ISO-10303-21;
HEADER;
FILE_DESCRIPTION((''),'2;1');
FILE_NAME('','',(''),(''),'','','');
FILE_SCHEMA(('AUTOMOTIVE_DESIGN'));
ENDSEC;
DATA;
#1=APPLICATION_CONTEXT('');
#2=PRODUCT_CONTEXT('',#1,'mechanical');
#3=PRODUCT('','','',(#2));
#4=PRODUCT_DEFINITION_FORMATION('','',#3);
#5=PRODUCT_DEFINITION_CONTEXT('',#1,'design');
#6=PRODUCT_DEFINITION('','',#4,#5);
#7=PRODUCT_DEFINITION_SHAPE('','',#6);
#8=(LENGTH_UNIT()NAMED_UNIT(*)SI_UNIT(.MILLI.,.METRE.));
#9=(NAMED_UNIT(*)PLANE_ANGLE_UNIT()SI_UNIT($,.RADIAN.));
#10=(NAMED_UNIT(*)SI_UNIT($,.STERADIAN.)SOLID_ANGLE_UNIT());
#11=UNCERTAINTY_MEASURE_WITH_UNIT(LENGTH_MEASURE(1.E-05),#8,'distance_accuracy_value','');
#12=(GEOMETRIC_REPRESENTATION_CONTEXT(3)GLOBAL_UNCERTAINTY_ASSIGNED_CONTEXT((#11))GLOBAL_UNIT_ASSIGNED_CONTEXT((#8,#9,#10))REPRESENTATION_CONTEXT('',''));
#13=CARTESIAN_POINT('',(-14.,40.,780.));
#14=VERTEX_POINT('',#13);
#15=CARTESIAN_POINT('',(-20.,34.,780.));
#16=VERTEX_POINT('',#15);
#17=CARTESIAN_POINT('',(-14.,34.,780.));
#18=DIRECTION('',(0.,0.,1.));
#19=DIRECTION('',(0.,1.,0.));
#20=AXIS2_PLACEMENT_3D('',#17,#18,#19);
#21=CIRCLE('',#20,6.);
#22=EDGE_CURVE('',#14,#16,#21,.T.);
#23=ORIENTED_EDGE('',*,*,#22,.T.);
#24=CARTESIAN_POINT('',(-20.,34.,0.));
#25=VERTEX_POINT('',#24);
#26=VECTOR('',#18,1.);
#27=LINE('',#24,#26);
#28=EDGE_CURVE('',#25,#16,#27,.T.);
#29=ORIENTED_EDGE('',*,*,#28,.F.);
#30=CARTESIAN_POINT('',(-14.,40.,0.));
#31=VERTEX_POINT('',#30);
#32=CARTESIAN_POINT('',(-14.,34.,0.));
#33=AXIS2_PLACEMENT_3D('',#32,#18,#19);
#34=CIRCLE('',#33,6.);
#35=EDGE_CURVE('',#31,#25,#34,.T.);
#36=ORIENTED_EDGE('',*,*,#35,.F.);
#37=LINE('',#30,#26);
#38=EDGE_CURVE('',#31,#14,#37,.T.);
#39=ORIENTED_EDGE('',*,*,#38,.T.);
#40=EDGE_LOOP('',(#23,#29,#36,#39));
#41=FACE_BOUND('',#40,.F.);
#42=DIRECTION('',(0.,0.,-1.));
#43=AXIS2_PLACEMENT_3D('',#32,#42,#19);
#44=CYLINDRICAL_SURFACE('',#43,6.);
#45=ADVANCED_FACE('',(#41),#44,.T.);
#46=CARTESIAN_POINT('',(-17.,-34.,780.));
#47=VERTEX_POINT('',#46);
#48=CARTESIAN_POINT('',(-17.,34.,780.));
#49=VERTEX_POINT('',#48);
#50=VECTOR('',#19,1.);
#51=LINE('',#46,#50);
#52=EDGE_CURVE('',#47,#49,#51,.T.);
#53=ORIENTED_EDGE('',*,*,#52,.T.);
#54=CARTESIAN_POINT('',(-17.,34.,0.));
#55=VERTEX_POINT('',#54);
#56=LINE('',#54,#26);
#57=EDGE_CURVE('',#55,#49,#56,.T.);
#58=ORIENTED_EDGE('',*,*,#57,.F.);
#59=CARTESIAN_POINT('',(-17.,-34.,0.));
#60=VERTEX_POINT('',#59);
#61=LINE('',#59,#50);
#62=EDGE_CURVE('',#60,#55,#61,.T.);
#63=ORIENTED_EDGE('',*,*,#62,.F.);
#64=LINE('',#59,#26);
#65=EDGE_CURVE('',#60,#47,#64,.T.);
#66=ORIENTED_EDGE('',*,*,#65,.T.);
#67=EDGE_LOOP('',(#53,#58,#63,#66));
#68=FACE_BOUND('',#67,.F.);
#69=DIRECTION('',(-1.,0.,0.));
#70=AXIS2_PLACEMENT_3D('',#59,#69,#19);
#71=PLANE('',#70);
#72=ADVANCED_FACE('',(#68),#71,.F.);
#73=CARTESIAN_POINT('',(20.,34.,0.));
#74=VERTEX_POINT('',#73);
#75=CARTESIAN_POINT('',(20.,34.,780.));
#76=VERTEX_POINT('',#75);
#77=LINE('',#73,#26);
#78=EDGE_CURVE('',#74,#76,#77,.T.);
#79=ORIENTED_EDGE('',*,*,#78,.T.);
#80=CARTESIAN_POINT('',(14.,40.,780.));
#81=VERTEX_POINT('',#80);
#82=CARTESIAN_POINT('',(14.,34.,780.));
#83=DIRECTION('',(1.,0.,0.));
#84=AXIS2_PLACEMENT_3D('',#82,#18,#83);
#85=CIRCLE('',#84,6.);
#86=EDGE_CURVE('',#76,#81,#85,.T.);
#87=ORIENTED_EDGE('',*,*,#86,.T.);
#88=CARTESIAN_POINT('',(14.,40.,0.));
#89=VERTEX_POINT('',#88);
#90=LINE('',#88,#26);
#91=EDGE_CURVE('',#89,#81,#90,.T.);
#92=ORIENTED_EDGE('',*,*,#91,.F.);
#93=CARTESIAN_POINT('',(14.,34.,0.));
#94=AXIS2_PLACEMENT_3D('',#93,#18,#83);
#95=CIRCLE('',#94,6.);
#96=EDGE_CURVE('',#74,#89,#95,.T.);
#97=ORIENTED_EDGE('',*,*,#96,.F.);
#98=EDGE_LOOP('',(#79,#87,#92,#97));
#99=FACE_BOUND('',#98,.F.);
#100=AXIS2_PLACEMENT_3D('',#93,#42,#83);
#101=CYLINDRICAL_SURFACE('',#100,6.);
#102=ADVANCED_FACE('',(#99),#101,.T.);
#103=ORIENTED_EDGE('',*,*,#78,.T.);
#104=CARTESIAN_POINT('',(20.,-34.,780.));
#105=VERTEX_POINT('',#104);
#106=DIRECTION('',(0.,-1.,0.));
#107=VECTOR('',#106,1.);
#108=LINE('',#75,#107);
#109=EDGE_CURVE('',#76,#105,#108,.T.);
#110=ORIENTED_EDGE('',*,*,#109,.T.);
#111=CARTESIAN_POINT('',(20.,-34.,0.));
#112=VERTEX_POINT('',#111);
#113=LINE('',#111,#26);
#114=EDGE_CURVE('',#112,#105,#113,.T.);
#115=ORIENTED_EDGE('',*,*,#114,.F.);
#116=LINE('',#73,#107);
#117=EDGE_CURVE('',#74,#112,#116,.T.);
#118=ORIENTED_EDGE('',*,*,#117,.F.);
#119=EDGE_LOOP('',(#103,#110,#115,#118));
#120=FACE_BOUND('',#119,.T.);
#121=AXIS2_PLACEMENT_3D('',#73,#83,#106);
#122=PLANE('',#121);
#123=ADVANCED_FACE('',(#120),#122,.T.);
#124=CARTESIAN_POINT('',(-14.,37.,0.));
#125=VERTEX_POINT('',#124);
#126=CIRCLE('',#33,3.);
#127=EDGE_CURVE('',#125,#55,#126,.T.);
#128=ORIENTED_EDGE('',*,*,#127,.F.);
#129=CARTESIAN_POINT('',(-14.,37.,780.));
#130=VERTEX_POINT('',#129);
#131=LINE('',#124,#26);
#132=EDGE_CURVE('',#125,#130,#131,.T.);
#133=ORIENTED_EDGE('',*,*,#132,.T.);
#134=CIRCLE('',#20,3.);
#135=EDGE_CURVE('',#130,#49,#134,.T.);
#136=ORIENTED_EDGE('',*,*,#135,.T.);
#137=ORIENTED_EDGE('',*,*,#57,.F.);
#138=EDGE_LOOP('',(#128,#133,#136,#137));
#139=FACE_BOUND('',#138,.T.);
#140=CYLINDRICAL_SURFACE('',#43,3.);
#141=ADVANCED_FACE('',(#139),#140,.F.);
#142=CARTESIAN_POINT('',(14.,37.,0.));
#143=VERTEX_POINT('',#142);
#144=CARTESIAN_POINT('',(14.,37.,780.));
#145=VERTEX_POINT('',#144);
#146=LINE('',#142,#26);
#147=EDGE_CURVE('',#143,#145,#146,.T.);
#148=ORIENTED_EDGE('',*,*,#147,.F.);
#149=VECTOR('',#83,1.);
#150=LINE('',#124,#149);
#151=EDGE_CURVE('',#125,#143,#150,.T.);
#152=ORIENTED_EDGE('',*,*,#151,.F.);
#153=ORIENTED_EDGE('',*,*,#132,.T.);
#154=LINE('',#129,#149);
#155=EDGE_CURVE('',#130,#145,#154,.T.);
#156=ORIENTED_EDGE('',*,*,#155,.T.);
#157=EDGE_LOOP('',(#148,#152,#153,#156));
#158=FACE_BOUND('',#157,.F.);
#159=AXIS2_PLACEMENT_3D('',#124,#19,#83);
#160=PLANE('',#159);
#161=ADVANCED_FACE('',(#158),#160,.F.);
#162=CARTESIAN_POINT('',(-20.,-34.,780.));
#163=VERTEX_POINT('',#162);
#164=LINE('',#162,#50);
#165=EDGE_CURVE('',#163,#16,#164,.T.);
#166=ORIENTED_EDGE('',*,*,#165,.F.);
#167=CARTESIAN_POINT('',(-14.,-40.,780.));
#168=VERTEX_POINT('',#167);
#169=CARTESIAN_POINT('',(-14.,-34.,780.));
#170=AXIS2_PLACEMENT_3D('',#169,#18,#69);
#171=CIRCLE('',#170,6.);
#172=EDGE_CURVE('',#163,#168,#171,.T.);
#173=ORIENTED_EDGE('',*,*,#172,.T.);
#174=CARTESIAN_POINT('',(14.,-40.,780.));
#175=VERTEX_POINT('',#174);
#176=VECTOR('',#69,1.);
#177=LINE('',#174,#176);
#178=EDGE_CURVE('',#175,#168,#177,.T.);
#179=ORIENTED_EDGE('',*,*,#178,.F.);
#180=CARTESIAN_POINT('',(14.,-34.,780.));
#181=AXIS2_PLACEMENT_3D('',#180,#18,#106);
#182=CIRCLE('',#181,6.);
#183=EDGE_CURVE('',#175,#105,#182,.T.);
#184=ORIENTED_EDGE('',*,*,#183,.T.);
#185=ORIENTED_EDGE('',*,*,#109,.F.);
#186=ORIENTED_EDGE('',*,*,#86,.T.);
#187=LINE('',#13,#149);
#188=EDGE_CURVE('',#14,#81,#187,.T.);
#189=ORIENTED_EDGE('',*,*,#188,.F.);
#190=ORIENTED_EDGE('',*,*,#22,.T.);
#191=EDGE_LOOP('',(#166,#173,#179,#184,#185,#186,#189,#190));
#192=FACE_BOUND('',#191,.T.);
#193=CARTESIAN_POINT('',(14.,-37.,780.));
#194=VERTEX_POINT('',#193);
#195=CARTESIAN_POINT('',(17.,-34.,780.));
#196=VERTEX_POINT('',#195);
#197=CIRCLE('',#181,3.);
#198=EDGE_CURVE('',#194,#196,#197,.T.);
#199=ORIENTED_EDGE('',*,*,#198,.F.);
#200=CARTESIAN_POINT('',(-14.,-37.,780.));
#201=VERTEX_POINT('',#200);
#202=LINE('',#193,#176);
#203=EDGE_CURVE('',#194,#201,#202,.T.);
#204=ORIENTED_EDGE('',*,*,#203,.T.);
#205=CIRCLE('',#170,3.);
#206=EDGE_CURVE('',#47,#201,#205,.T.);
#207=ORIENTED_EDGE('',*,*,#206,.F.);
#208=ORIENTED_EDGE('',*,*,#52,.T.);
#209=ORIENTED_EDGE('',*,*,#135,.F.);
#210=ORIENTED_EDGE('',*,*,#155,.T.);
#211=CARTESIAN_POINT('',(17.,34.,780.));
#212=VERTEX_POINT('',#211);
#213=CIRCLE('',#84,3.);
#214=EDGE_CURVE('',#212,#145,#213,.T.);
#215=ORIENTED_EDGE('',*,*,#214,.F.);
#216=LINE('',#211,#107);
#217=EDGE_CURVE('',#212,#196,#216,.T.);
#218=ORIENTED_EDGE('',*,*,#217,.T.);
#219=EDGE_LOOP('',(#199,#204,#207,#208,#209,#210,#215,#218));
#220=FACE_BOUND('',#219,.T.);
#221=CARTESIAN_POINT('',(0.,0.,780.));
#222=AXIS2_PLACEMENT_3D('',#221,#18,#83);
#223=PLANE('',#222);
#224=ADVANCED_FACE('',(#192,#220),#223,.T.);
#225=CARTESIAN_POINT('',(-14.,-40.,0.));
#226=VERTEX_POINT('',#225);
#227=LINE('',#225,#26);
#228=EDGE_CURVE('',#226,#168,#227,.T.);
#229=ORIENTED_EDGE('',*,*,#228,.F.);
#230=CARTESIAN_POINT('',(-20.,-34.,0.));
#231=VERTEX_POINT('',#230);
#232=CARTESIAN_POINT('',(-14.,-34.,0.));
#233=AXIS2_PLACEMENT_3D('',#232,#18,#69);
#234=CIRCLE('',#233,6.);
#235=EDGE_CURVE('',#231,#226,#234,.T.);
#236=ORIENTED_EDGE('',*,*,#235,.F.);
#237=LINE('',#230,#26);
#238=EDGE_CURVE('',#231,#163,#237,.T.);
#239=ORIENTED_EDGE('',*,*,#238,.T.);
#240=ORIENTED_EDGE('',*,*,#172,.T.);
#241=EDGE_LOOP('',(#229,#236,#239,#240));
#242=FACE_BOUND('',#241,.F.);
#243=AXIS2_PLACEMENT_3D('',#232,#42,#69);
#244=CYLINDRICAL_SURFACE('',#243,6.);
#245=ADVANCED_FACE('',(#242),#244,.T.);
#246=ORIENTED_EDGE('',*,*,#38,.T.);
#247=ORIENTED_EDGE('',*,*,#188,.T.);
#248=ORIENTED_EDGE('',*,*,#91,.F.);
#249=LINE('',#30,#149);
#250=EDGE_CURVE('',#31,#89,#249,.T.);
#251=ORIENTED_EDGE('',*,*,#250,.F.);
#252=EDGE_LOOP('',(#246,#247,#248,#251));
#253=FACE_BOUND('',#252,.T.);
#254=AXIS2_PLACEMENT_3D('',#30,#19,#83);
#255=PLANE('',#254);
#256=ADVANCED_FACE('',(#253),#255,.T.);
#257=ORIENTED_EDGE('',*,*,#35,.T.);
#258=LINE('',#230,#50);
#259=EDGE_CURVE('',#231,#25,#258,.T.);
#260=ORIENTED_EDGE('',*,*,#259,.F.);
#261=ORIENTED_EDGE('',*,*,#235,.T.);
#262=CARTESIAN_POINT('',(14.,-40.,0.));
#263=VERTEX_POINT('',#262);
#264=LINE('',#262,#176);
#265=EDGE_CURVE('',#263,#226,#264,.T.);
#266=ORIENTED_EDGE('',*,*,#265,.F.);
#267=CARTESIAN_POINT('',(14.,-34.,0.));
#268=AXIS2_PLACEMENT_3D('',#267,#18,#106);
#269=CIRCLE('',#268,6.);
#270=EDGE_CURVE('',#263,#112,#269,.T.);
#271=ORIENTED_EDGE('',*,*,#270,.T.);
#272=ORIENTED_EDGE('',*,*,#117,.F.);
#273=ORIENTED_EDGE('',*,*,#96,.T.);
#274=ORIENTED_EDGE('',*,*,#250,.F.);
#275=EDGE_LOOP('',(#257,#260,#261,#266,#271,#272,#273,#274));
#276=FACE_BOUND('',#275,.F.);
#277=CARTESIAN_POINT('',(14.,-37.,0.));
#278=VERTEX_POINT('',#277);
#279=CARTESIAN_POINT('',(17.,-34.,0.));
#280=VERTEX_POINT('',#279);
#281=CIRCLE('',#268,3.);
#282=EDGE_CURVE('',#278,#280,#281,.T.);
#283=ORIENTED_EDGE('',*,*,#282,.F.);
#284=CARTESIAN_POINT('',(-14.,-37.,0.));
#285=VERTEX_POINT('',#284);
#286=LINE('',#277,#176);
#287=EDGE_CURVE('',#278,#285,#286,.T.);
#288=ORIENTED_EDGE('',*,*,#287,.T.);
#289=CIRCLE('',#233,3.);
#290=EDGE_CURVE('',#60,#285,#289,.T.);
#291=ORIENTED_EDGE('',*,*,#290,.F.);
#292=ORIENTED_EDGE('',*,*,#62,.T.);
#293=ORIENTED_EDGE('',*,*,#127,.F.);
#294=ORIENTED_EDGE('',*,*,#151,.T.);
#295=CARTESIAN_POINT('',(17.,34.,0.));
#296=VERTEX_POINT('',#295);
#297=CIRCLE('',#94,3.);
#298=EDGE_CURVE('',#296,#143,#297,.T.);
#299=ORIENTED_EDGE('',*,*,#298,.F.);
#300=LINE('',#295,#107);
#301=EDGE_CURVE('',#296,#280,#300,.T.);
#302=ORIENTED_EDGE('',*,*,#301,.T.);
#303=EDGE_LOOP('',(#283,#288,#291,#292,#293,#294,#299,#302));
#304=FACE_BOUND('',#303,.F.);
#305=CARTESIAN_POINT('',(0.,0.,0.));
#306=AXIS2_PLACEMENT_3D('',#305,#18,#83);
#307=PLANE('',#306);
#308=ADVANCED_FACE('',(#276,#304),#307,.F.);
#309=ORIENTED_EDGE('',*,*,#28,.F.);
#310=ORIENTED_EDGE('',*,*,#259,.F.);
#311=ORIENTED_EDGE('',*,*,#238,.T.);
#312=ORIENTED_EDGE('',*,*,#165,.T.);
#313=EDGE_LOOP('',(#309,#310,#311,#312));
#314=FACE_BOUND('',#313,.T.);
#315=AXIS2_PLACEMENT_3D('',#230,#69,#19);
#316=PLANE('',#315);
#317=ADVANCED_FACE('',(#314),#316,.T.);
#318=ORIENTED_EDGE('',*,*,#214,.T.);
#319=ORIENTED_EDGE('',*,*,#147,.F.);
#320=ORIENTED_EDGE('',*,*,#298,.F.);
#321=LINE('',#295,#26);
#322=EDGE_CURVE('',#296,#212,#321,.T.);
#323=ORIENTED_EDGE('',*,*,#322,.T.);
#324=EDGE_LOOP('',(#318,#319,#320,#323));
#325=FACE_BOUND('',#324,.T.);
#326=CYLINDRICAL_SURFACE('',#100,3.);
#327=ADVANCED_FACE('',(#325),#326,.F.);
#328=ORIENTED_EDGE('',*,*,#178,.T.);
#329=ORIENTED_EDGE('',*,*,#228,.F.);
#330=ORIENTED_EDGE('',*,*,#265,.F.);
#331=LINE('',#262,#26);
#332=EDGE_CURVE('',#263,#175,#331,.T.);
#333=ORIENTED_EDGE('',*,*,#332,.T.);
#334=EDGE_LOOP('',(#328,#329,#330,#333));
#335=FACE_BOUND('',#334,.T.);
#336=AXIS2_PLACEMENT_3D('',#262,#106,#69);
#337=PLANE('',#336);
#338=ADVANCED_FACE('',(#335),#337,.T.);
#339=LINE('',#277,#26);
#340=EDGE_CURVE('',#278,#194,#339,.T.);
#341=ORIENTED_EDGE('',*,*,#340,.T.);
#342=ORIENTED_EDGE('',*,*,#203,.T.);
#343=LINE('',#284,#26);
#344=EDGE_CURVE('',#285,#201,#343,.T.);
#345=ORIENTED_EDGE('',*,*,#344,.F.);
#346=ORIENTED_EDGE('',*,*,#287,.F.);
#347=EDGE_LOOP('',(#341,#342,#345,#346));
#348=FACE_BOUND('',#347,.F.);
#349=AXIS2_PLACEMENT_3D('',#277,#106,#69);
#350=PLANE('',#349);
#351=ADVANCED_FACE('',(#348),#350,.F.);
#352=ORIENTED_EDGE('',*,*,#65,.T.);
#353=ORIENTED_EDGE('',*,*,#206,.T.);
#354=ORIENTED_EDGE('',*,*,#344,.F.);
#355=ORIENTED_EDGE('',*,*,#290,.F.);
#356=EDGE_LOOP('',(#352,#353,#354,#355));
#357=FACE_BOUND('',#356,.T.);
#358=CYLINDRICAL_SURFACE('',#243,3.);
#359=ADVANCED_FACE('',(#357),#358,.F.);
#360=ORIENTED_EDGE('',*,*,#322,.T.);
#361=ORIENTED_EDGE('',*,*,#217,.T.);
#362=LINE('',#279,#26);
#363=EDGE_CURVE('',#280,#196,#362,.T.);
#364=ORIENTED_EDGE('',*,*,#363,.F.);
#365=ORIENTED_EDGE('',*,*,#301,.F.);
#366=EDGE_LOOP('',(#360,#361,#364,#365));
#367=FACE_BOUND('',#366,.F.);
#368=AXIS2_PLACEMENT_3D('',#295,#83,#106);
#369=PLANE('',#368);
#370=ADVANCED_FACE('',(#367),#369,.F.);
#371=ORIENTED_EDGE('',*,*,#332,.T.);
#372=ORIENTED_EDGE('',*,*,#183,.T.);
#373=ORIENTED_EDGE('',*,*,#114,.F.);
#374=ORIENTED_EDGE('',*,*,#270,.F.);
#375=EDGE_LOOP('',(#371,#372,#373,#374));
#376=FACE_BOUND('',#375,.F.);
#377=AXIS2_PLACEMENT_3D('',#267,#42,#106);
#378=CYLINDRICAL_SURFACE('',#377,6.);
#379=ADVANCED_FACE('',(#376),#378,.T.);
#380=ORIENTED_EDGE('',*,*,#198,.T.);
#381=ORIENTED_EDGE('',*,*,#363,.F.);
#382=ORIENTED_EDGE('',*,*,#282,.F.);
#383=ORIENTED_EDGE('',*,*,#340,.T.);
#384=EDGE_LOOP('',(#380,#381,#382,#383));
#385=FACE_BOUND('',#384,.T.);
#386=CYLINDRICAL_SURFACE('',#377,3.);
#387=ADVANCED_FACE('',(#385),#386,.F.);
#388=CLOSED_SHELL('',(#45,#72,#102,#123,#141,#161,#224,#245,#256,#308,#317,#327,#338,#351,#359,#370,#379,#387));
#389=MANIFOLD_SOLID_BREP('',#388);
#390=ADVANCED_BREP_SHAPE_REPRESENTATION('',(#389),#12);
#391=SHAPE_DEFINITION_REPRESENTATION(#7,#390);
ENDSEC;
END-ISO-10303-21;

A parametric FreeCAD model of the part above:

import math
import FreeCAD as App
import Part
import Sketcher
from FreeCAD import Vector
Q = App.Units.Quantity

doc = App.newDocument("Part")
params = doc.addObject("Spreadsheet::Sheet", "Params")
for row, (alias, value) in enumerate([
    ("sketch1_radius", "6 mm"),
    ("sketch1_radius2", "3 mm"),
    ("pad1_length", "780 mm"),
], start=1):
    params.set(f"A{row}", alias)
    params.set(f"B{row}", "=" + value)
    params.setAlias(f"B{row}", alias)

body = doc.addObject("PartDesign::Body", "Body")

sketch1 = body.newObject("Sketcher::SketchObject", "Sketch")
sketch1.AttachmentSupport = (doc.getObject("XY_Plane"), [""])
sketch1.MapMode = "FlatFace"
sketch1.addGeometry(Part.LineSegment(Vector(-20, 34, 0), Vector(-20, -34, 0)), False)
sketch1.addGeometry(Part.ArcOfCircle(Part.Circle(Vector(-14, -34, 0), Vector(0, 0, 1), 6), math.radians(180), math.radians(270)), False)
sketch1.addGeometry(Part.LineSegment(Vector(-14, -40, 0), Vector(14, -40, 0)), False)
sketch1.addGeometry(Part.ArcOfCircle(Part.Circle(Vector(14, -34, 0), Vector(0, 0, 1), 6), math.radians(-90), math.radians(0)), False)
sketch1.addGeometry(Part.LineSegment(Vector(20, -34, 0), Vector(20, 34, 0)), False)
sketch1.addGeometry(Part.ArcOfCircle(Part.Circle(Vector(14, 34, 0), Vector(0, 0, 1), 6), math.radians(0), math.radians(90)), False)
sketch1.addGeometry(Part.LineSegment(Vector(14, 40, 0), Vector(-14, 40, 0)), False)
sketch1.addGeometry(Part.ArcOfCircle(Part.Circle(Vector(-14, 34, 0), Vector(0, 0, 1), 6), math.radians(90), math.radians(180)), False)
sketch1.addGeometry(Part.ArcOfCircle(Part.Circle(Vector(-14, 34, 0), Vector(0, 0, 1), 3), math.radians(90), math.radians(180)), False)
sketch1.addGeometry(Part.LineSegment(Vector(-14, 37, 0), Vector(14, 37, 0)), False)
sketch1.addGeometry(Part.ArcOfCircle(Part.Circle(Vector(14, 34, 0), Vector(0, 0, 1), 3), math.radians(0), math.radians(90)), False)
sketch1.addGeometry(Part.LineSegment(Vector(17, 34, 0), Vector(17, -34, 0)), False)
sketch1.addGeometry(Part.ArcOfCircle(Part.Circle(Vector(14, -34, 0), Vector(0, 0, 1), 3), math.radians(-90), math.radians(0)), False)
sketch1.addGeometry(Part.LineSegment(Vector(14, -37, 0), Vector(-14, -37, 0)), False)
sketch1.addGeometry(Part.ArcOfCircle(Part.Circle(Vector(-14, -34, 0), Vector(0, 0, 1), 3), math.radians(180), math.radians(270)), False)
sketch1.addGeometry(Part.LineSegment(Vector(-17, -34, 0), Vector(-17, 34, 0)), False)
sketch1.addConstraint(Sketcher.Constraint("Tangent", 0, 2, 1, 1))
sketch1.addConstraint(Sketcher.Constraint("Tangent", 1, 2, 2, 1))
sketch1.addConstraint(Sketcher.Constraint("Tangent", 2, 2, 3, 1))
sketch1.addConstraint(Sketcher.Constraint("Tangent", 3, 2, 4, 1))
sketch1.addConstraint(Sketcher.Constraint("Tangent", 4, 2, 5, 1))
sketch1.addConstraint(Sketcher.Constraint("Tangent", 5, 2, 6, 1))
sketch1.addConstraint(Sketcher.Constraint("Tangent", 6, 2, 7, 1))
sketch1.addConstraint(Sketcher.Constraint("Tangent", 7, 2, 0, 1))
sketch1.addConstraint(Sketcher.Constraint("Tangent", 8, 1, 9, 1))
sketch1.addConstraint(Sketcher.Constraint("Tangent", 9, 2, 10, 2))
sketch1.addConstraint(Sketcher.Constraint("Tangent", 10, 1, 11, 1))
sketch1.addConstraint(Sketcher.Constraint("Tangent", 11, 2, 12, 2))
sketch1.addConstraint(Sketcher.Constraint("Tangent", 12, 1, 13, 1))
sketch1.addConstraint(Sketcher.Constraint("Tangent", 13, 2, 14, 2))
sketch1.addConstraint(Sketcher.Constraint("Tangent", 14, 1, 15, 1))
sketch1.addConstraint(Sketcher.Constraint("Tangent", 15, 2, 8, 2))
sketch1.addConstraint(Sketcher.Constraint("Vertical", 0))
sketch1.addConstraint(Sketcher.Constraint("Horizontal", 2))
sketch1.addConstraint(Sketcher.Constraint("Vertical", 4))
sketch1.addConstraint(Sketcher.Constraint("Horizontal", 6))
sketch1.addConstraint(Sketcher.Constraint("Horizontal", 9))
sketch1.addConstraint(Sketcher.Constraint("Vertical", 11))
sketch1.addConstraint(Sketcher.Constraint("Horizontal", 13))
sketch1.addConstraint(Sketcher.Constraint("Vertical", 15))
sketch1.addConstraint(Sketcher.Constraint("Coincident", 8, 3, 7, 3))
sketch1.addConstraint(Sketcher.Constraint("Coincident", 10, 3, 5, 3))
sketch1.addConstraint(Sketcher.Constraint("Coincident", 12, 3, 3, 3))
sketch1.addConstraint(Sketcher.Constraint("Equal", 1, 3))
sketch1.addConstraint(Sketcher.Constraint("Equal", 3, 5))
sketch1.addConstraint(Sketcher.Constraint("Equal", 5, 7))
sketch1.addConstraint(Sketcher.Constraint("Equal", 12, 14))
sketch1.addConstraint(Sketcher.Constraint("Symmetric", 1, 3, 5, 3, -1, 1))
sketch1.addConstraint(Sketcher.Constraint("Radius", 1, Q("6 mm")))
sketch1.addConstraint(Sketcher.Constraint("Radius", 8, Q("3 mm")))
sketch1.addConstraint(Sketcher.Constraint("DistanceX", 0, 2, -1, 1, Q("20 mm")))
sketch1.addConstraint(Sketcher.Constraint("DistanceY", 1, 2, -1, 1, Q("40 mm")))
sketch1.setExpression("Constraints[32]", "Params.sketch1_radius")
sketch1.setExpression("Constraints[33]", "Params.sketch1_radius2")
pad1 = body.newObject("PartDesign::Pad", "Pad")
pad1.Profile = sketch1
pad1.setExpression("Length", "Params.pad1_length")

doc.recompute()
